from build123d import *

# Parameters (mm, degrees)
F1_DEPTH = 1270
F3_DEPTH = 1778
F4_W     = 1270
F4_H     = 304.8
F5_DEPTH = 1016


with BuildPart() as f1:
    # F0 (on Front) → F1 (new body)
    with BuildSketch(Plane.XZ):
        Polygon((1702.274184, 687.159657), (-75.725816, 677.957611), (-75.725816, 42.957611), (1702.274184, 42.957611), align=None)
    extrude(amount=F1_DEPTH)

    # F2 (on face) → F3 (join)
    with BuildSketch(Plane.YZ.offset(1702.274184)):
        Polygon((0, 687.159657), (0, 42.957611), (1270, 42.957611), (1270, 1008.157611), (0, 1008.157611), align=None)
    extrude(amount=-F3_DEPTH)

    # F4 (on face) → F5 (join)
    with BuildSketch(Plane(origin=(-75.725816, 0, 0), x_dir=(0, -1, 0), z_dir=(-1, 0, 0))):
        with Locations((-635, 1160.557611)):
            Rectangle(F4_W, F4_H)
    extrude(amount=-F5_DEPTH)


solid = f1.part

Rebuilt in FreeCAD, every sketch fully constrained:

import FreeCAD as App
import Part
import Sketcher
Q = App.Units.Quantity


def add_polygon(sketch, points):
    """Adds a closed chain of lines whose ends are joined by coincident constraints."""
    first, n = sketch.GeometryCount, len(points)
    for a, b in zip(points, points[1:] + points[:1]):
        sketch.addGeometry(Part.LineSegment(App.Vector(*a, 0), App.Vector(*b, 0)), False)
    for i in range(n):
        sketch.addConstraint(Sketcher.Constraint("Coincident", first + i, 2, first + (i + 1) % n, 1))

doc = App.newDocument("Part")
params = doc.addObject("Spreadsheet::Sheet", "Params")
for row, (alias, value) in enumerate([
    ("sketch1_width", "70 in"),
    ("sketch1_height", "25 in"),
    ("pad1_length", "50 in"),
    ("sketch2_width", "50 in"),
    ("sketch2_height", "38 in"),
    ("pad2_length", "70 in"),
    ("sketch3_width", "50 in"),
    ("sketch3_height", "12 in"),
    ("pad3_length", "40 in"),
], start=1):
    params.set(f"A{row}", alias)
    params.set(f"B{row}", "=" + value)
    params.setAlias(f"B{row}", alias)

body = doc.addObject("PartDesign::Body", "Body")

# Sketch on XZ plane
sketch1 = doc.addObject("Sketcher::SketchObject", "Sketch")
body.addObject(sketch1)
sketch1.AttachmentSupport = (doc.XZ_Plane, [""])
sketch1.MapMode = "FlatFace"
add_polygon(sketch1, [(1702, 687), (-76, 678), (-76, 43), (1702, 43)])  # lines 0-3
sketch1.addConstraint(Sketcher.Constraint("Vertical", 1))
sketch1.addConstraint(Sketcher.Constraint("Horizontal", 2))
sketch1.addConstraint(Sketcher.Constraint("Vertical", 3))
sketch1.addConstraint(Sketcher.Constraint("DistanceX", 2, 1, 2, 2, Q("70 in")))
sketch1.addConstraint(Sketcher.Constraint("DistanceY", 1, 2, 1, 1, Q("25 in")))
sketch1.addConstraint(Sketcher.Constraint("DistanceY", 3, 1, 3, 2, Q("644.202046 mm")))
sketch1.addConstraint(Sketcher.Constraint("DistanceY", -1, 1, 0, 2, Q("677.957611 mm")))
sketch1.addConstraint(Sketcher.Constraint("DistanceX", 0, 2, -1, 1, Q("75.725816 mm")))
sketch1.setExpression("Constraints[7]", "Params.sketch1_width")
sketch1.setExpression("Constraints[8]", "Params.sketch1_height")
pad1 = doc.addObject("PartDesign::Pad", "Pad")
body.addObject(pad1)
pad1.Profile = sketch1
pad1.setExpression("Length", "Params.pad1_length")

# Sketch on YZ plane
sketch2 = doc.addObject("Sketcher::SketchObject", "Sketch001")
body.addObject(sketch2)
sketch2.AttachmentSupport = (doc.YZ_Plane, [""])
sketch2.MapMode = "FlatFace"
sketch2.AttachmentOffset = App.Placement(App.Vector(0, 0, 1702.274184), App.Rotation())
add_polygon(sketch2, [(0, 43), (1270, 43), (1270, 1008), (0, 1008)])  # lines 0-3
sketch2.addConstraint(Sketcher.Constraint("Horizontal", 0))
sketch2.addConstraint(Sketcher.Constraint("Vertical", 1))
sketch2.addConstraint(Sketcher.Constraint("Horizontal", 2))
sketch2.addConstraint(Sketcher.Constraint("Vertical", 3))
sketch2.addConstraint(Sketcher.Constraint("PointOnObject", 2, 2, -2))
sketch2.addConstraint(Sketcher.Constraint("DistanceX", 0, 1, 0, 2, Q("50 in")))
sketch2.addConstraint(Sketcher.Constraint("DistanceY", 1, 1, 1, 2, Q("38 in")))
sketch2.addConstraint(Sketcher.Constraint("DistanceY", -1, 1, 0, 2, Q("42.957611 mm")))
sketch2.setExpression("Constraints[9]", "Params.sketch2_width")
sketch2.setExpression("Constraints[10]", "Params.sketch2_height")
pad2 = doc.addObject("PartDesign::Pad", "Pad001")
body.addObject(pad2)
pad2.Profile = sketch2
pad2.setExpression("Length", "Params.pad2_length")
pad2.Reversed = True

# Sketch on YZ plane
sketch3 = doc.addObject("Sketcher::SketchObject", "Sketch002")
body.addObject(sketch3)
sketch3.AttachmentSupport = (doc.YZ_Plane, [""])
sketch3.MapMode = "FlatFace"
sketch3.AttachmentOffset = App.Placement(App.Vector(0, 0, -75.725816), App.Rotation())
add_polygon(sketch3, [(1270, 1313), (1270, 1008), (0, 1008), (0, 1313)])  # lines 0-3
sketch3.addConstraint(Sketcher.Constraint("Vertical", 0))
sketch3.addConstraint(Sketcher.Constraint("Horizontal", 1))
sketch3.addConstraint(Sketcher.Constraint("Vertical", 2))
sketch3.addConstraint(Sketcher.Constraint("Horizontal", 3))
sketch3.addConstraint(Sketcher.Constraint("PointOnObject", 1, 2, -2))
sketch3.addConstraint(Sketcher.Constraint("DistanceX", 1, 2, 1, 1, Q("50 in")))
sketch3.addConstraint(Sketcher.Constraint("DistanceY", 0, 2, 0, 1, Q("12 in")))
sketch3.addConstraint(Sketcher.Constraint("DistanceY", -1, 1, 0, 2, Q("1008.157611 mm")))
sketch3.setExpression("Constraints[9]", "Params.sketch3_width")
sketch3.setExpression("Constraints[10]", "Params.sketch3_height")
pad3 = doc.addObject("PartDesign::Pad", "Pad002")
body.addObject(pad3)
pad3.Profile = sketch3
pad3.setExpression("Length", "Params.pad3_length")

doc.recompute()
